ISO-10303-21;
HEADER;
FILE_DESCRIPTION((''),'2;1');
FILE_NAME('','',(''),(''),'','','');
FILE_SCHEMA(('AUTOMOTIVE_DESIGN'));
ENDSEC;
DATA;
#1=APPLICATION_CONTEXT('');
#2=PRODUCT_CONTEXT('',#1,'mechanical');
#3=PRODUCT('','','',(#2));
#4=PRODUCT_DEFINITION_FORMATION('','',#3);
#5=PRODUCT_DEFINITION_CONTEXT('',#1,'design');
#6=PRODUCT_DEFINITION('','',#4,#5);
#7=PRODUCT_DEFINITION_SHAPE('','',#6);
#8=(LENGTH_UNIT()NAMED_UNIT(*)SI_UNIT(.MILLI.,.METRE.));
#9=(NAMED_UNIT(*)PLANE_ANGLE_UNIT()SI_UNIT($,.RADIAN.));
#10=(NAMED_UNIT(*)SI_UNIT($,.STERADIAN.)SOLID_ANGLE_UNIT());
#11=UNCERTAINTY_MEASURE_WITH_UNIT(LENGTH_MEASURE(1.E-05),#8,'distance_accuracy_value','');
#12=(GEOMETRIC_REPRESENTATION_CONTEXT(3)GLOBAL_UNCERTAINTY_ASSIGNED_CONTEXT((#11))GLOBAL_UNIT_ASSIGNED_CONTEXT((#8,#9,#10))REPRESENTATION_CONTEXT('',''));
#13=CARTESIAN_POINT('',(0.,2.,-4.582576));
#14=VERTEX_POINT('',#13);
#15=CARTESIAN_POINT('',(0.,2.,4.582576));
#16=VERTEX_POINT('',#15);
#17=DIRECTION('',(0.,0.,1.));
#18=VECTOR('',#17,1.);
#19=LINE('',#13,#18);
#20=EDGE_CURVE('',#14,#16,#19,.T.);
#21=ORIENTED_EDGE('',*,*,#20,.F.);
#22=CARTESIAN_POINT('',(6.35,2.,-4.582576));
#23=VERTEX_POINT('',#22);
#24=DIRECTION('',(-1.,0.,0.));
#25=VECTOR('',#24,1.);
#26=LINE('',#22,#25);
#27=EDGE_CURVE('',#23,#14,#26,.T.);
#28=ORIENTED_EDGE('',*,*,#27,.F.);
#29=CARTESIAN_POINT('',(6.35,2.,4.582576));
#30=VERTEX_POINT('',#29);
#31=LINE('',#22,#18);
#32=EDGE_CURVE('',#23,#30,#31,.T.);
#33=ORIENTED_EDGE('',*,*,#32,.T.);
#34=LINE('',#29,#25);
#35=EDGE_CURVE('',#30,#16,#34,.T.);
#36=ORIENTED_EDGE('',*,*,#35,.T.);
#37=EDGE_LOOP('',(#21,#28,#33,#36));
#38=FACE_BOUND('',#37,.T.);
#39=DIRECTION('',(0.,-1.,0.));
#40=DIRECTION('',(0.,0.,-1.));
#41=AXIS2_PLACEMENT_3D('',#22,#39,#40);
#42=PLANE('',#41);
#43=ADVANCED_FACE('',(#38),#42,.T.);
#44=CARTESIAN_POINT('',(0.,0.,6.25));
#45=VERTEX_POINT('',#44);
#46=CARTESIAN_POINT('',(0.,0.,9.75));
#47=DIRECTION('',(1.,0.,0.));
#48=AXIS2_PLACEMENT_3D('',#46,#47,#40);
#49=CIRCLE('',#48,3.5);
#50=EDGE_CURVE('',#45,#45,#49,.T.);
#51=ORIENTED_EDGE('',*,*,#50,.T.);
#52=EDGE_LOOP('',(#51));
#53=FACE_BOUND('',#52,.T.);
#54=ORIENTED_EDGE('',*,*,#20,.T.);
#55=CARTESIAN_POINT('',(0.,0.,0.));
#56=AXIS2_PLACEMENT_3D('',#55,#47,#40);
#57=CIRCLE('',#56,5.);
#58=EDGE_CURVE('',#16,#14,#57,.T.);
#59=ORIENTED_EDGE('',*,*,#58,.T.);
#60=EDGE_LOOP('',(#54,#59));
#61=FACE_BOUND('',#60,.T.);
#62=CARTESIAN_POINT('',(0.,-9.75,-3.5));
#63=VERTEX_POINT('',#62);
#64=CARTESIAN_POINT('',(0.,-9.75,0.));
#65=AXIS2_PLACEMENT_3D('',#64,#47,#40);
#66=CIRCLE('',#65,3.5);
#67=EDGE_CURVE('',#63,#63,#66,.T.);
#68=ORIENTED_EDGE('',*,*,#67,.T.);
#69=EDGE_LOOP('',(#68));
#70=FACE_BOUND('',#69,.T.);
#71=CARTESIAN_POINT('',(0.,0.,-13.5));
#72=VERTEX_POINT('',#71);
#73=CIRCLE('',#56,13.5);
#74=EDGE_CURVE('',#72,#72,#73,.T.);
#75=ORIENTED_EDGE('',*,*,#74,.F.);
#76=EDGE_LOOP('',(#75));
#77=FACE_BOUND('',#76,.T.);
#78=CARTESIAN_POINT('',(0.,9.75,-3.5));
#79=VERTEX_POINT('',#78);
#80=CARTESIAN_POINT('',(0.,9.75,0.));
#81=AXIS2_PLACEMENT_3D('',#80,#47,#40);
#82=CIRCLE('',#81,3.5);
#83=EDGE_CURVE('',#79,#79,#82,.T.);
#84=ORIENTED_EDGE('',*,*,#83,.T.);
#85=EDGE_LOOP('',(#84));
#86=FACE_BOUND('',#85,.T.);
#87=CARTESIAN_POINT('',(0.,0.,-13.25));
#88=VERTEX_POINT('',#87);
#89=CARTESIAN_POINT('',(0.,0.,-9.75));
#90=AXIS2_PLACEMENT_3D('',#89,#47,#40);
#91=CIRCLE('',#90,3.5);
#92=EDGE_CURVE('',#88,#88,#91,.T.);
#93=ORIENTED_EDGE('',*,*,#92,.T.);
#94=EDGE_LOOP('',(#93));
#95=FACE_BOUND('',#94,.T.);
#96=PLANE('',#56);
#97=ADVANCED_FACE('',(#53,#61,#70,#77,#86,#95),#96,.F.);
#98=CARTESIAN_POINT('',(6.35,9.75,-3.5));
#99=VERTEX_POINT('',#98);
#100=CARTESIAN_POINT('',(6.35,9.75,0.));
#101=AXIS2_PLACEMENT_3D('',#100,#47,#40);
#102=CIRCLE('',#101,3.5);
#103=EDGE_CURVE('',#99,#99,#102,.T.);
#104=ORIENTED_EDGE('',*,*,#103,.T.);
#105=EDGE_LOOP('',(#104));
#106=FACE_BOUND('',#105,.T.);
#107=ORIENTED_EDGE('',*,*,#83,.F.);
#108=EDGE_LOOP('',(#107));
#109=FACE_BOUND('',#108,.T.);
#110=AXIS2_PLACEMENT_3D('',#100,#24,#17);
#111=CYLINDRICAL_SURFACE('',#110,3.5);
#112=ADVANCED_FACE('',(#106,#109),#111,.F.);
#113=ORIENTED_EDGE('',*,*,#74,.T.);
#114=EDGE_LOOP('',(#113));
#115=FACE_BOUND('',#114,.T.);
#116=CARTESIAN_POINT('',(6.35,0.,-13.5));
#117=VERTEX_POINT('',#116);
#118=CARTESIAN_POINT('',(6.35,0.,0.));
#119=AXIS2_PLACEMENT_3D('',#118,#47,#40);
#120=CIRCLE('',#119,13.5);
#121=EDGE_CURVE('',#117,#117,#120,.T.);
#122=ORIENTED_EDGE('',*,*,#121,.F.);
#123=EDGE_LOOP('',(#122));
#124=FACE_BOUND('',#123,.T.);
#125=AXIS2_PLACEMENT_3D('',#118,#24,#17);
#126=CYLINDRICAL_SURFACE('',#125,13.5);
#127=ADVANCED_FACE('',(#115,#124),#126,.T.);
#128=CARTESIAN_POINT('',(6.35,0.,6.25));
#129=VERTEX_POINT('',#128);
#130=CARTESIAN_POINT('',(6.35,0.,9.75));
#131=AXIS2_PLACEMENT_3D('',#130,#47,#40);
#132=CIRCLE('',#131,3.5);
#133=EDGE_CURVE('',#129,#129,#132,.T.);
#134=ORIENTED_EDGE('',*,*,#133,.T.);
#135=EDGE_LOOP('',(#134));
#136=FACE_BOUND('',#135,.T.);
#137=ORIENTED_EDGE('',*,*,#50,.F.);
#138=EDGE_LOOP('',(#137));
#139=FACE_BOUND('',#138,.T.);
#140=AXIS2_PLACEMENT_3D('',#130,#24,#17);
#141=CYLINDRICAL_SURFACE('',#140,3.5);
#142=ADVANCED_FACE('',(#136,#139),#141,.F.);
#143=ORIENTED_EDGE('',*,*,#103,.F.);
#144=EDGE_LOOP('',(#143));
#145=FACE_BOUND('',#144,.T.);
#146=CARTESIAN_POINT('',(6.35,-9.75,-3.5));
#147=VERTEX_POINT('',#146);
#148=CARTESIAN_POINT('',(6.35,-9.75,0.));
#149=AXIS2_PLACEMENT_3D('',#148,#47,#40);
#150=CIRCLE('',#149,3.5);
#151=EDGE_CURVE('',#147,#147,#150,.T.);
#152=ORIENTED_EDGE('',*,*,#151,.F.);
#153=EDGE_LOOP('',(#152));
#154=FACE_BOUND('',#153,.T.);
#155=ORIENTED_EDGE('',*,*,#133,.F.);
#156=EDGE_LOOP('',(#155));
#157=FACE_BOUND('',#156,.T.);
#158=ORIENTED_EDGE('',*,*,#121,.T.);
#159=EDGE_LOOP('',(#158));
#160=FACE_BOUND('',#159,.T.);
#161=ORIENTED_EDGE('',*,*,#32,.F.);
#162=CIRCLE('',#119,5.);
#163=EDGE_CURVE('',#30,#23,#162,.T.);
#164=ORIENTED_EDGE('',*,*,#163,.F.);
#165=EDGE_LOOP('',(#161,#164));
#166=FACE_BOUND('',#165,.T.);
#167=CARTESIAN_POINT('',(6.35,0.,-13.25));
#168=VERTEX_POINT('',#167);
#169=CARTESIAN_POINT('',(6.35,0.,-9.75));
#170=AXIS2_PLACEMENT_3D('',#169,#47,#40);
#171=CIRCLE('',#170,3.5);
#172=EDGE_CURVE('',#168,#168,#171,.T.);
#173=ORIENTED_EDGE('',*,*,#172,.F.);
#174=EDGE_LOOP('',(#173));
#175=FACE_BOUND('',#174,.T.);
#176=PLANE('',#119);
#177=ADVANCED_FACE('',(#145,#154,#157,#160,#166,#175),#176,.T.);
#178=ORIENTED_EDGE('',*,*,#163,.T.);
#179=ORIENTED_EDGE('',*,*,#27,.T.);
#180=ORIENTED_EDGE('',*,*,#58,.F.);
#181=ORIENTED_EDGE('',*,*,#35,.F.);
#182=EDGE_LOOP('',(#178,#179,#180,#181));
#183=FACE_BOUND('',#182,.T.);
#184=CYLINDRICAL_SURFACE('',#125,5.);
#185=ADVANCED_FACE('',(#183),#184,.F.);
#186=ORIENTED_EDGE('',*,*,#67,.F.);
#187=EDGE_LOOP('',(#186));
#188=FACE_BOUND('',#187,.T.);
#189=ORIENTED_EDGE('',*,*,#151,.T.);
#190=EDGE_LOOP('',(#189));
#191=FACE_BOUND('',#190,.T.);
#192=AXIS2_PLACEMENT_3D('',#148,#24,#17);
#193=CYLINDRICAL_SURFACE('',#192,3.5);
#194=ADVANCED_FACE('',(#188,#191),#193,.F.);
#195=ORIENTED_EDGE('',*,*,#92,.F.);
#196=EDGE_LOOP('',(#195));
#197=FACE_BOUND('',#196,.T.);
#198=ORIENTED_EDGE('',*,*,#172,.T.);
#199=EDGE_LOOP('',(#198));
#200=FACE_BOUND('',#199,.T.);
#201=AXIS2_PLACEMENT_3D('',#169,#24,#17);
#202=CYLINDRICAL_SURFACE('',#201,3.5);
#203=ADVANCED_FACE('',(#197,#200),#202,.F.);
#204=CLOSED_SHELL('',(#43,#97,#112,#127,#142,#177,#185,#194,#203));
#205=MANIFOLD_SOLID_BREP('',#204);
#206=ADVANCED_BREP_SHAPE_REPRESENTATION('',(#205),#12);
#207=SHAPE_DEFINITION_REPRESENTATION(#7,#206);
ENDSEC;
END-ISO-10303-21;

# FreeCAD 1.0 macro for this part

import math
import FreeCAD as App
import Part
import Sketcher
Q = App.Units.Quantity

doc = App.newDocument("Part")
body = doc.addObject("PartDesign::Body", "Body")

# Sketch on YZ plane
sketch1 = body.newObject("Sketcher::SketchObject", "Sketch")
sketch1.AttachmentSupport = (doc.getObject("YZ_Plane"), [""])
sketch1.MapMode = "FlatFace"
sketch1.addGeometry(Part.Circle(App.Vector(0, 0, 0), App.Vector(0, 0, 1), 13.5), False)
sketch1.addGeometry(Part.LineSegment(App.Vector(2, 4.582576, 0), App.Vector(2, -4.582576, 0)), False)
sketch1.addGeometry(Part.ArcOfCircle(Part.Circle(App.Vector(0, 0, 0), App.Vector(0, 0, 1), 5), math.radians(66.421822), math.radians(293.578178)), False)
sketch1.addGeometry(Part.Circle(App.Vector(-9.75, 0, 0), App.Vector(0, 0, 1), 3.5), False)
sketch1.addGeometry(Part.Circle(App.Vector(0, 9.75, 0), App.Vector(0, 0, 1), 3.5), False)
sketch1.addGeometry(Part.Circle(App.Vector(0, -9.75, 0), App.Vector(0, 0, 1), 3.5), False)
sketch1.addGeometry(Part.Circle(App.Vector(9.75, 0, 0), App.Vector(0, 0, 1), 3.5), False)
sketch1.addConstraint(Sketcher.Constraint("Coincident", 1, 1, 2, 1))
sketch1.addConstraint(Sketcher.Constraint("Coincident", 2, 2, 1, 2))
sketch1.addConstraint(Sketcher.Constraint("Vertical", 1))
sketch1.addConstraint(Sketcher.Constraint("Coincident", 0, 3, -1, 1))
sketch1.addConstraint(Sketcher.Constraint("Coincident", 2, 3, -1, 1))
sketch1.addConstraint(Sketcher.Constraint("Equal", 3, 4))
sketch1.addConstraint(Sketcher.Constraint("Equal", 4, 5))
sketch1.addConstraint(Sketcher.Constraint("Equal", 5, 6))
sketch1.addConstraint(Sketcher.Constraint("Symmetric", 4, 3, 5, 3, -1, 1))
sketch1.addConstraint(Sketcher.Constraint("Symmetric", 3, 3, 6, 3, -1, 1))
sketch1.addConstraint(Sketcher.Constraint("PointOnObject", 3, 3, -1))
sketch1.addConstraint(Sketcher.Constraint("PointOnObject", 4, 3, -2))
sketch1.addConstraint(Sketcher.Constraint("Diameter", 0, Q("27 mm")))
sketch1.addConstraint(Sketcher.Constraint("Diameter", 3, Q("7 mm")))
sketch1.addConstraint(Sketcher.Constraint("Radius", 2, Q("5 mm")))
sketch1.addConstraint(Sketcher.Constraint("DistanceX", -1, 1, 1, 1, Q("2 mm")))
sketch1.addConstraint(Sketcher.Constraint("DistanceY", 5, 3, 4, 3, Q("19.5 mm")))
sketch1.addConstraint(Sketcher.Constraint("DistanceX", 3, 3, 6, 3, Q("19.5 mm")))
pad1 = body.newObject("PartDesign::Pad", "Pad")
pad1.Profile = sketch1
pad1.Length = 6.35

doc.recompute()
